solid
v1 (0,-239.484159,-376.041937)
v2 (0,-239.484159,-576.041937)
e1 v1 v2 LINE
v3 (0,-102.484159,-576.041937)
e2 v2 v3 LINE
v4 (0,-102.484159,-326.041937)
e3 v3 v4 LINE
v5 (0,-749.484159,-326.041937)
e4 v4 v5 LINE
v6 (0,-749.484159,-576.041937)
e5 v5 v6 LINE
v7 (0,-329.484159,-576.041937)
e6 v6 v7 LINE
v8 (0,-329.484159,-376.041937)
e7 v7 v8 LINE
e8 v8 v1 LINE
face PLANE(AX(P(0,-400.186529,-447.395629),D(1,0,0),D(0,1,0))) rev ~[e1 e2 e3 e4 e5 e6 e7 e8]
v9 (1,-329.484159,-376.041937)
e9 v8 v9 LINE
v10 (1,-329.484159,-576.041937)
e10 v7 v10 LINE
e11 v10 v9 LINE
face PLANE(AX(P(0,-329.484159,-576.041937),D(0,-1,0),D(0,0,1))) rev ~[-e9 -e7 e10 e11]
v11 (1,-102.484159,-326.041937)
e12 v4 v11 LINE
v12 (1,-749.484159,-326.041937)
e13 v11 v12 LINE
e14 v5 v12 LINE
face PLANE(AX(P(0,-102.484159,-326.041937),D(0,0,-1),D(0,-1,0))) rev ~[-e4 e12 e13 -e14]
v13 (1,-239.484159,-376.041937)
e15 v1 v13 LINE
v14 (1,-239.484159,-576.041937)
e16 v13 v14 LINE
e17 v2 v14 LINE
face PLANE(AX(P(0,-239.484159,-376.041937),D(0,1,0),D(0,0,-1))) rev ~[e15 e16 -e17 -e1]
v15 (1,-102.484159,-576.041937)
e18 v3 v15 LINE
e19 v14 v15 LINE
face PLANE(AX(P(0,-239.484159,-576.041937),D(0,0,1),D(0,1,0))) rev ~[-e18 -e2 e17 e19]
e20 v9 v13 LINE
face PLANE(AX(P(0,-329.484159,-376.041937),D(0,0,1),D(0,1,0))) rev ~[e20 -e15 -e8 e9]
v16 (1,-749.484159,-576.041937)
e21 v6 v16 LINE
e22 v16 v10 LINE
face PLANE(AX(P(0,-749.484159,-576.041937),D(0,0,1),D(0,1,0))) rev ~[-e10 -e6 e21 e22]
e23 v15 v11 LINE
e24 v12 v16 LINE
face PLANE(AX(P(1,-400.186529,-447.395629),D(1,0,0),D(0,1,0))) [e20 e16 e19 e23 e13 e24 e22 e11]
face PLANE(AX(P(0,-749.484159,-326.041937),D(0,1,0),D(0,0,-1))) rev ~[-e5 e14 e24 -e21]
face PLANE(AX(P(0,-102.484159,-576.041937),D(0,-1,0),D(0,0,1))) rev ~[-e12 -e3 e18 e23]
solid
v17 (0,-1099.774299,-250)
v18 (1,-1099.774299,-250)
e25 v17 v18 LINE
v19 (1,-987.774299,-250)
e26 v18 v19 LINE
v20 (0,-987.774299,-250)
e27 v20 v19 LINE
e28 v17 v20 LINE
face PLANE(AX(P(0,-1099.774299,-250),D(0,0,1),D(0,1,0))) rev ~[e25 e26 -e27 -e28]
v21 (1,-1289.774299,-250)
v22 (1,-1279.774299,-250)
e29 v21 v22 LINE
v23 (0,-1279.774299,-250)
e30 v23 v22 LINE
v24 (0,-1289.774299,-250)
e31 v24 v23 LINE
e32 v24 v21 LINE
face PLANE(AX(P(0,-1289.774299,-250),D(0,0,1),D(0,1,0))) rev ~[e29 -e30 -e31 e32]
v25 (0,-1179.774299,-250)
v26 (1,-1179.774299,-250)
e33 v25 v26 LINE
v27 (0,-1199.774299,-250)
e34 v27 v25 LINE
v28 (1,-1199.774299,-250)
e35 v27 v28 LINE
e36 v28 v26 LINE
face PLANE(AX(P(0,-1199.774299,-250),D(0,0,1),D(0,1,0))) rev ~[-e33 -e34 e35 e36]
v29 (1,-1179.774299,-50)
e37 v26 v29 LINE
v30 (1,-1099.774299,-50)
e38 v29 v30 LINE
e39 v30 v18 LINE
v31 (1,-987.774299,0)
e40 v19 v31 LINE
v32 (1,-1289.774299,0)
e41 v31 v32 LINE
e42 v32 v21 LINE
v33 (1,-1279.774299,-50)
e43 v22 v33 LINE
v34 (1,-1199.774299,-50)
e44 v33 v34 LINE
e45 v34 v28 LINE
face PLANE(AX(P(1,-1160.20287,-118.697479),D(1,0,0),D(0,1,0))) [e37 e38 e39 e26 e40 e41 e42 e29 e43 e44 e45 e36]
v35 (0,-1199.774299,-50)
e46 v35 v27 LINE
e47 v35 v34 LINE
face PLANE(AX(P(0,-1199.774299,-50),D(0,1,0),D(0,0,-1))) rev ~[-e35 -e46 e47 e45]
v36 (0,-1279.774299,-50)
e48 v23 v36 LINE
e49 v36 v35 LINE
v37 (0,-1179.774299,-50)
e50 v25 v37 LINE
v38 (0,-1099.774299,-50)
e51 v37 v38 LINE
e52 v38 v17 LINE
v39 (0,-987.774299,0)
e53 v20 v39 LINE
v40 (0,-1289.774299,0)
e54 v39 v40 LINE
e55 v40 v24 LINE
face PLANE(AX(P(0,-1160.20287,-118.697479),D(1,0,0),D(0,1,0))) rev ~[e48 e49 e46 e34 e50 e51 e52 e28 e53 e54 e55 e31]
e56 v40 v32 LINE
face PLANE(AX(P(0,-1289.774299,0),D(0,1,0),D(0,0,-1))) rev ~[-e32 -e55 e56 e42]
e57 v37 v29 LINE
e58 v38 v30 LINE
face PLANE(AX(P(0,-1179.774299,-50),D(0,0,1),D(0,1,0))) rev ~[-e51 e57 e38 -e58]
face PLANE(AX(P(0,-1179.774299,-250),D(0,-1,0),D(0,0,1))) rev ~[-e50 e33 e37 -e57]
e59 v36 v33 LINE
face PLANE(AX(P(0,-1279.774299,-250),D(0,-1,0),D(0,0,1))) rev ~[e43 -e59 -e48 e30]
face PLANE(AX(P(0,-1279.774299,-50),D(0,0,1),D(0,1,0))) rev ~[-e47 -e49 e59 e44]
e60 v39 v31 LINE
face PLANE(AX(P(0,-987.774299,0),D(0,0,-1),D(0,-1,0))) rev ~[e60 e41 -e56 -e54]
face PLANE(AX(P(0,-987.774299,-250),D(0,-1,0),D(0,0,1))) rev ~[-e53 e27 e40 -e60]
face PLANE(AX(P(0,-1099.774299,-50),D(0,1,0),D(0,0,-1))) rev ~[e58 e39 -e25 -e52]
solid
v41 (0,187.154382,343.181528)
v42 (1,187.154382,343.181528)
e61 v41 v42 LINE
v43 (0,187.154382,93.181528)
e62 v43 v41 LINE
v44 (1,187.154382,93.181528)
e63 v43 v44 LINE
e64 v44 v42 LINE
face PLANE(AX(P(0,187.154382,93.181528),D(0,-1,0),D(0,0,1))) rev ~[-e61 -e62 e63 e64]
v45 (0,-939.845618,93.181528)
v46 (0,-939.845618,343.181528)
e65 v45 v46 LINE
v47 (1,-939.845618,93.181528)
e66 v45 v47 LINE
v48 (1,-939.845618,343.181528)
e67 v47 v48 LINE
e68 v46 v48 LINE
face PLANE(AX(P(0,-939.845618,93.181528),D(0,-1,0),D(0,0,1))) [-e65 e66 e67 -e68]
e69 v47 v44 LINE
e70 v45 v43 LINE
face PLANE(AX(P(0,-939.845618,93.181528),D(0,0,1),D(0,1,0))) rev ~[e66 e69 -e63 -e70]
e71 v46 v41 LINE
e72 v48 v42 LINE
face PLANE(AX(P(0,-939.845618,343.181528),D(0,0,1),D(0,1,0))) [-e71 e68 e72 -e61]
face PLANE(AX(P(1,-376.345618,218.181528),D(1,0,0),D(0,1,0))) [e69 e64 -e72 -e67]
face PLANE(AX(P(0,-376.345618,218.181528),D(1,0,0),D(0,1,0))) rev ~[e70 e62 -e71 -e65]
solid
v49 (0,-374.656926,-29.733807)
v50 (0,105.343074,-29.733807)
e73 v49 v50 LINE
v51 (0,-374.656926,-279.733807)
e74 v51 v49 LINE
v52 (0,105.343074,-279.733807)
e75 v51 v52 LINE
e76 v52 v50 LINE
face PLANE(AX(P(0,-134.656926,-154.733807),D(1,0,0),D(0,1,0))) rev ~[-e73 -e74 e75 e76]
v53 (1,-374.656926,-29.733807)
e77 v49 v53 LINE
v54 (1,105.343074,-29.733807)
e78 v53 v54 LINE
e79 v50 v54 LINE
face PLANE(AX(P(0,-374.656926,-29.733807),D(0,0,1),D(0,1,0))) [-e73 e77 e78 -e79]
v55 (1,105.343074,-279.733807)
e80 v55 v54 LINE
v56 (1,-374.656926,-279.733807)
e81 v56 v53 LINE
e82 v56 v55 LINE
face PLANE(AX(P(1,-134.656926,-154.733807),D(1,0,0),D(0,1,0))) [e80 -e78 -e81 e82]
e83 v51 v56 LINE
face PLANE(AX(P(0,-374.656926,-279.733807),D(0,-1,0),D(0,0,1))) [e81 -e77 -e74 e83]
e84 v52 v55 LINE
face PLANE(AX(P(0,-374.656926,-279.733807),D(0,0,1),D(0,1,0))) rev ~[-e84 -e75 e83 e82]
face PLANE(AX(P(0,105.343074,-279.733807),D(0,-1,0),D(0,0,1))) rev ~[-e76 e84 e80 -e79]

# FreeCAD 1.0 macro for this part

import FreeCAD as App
import Part
import Sketcher

doc = App.newDocument("Part")
body = doc.addObject("PartDesign::Body", "Body")
body.AllowCompound = True

# Sketch on YZ plane
sketch1 = body.newObject("Sketcher::SketchObject", "Sketch")
sketch1.AttachmentSupport = (doc.getObject("YZ_Plane"), [""])
sketch1.MapMode = "FlatFace"
sketch1.addGeometry(Part.LineSegment(App.Vector(-940, 343, 0), App.Vector(-940, 93, 0)), False)
sketch1.addGeometry(Part.LineSegment(App.Vector(-940, 93, 0), App.Vector(187, 93, 0)), False)
sketch1.addGeometry(Part.LineSegment(App.Vector(187, 93, 0), App.Vector(187, 343, 0)), False)
sketch1.addGeometry(Part.LineSegment(App.Vector(187, 343, 0), App.Vector(-940, 343, 0)), False)
sketch1.addGeometry(Part.LineSegment(App.Vector(-988, 0, 0), App.Vector(-1290, 0, 0)), False)
sketch1.addGeometry(Part.LineSegment(App.Vector(-1290, 0, 0), App.Vector(-1290, -250, 0)), False)
sketch1.addGeometry(Part.LineSegment(App.Vector(-1290, -250, 0), App.Vector(-1280, -250, 0)), False)
sketch1.addGeometry(Part.LineSegment(App.Vector(-1280, -250, 0), App.Vector(-1280, -50, 0)), False)
sketch1.addGeometry(Part.LineSegment(App.Vector(-1280, -50, 0), App.Vector(-1200, -50, 0)), False)
sketch1.addGeometry(Part.LineSegment(App.Vector(-1200, -50, 0), App.Vector(-1200, -250, 0)), False)
sketch1.addGeometry(Part.LineSegment(App.Vector(-1200, -250, 0), App.Vector(-1180, -250, 0)), False)
sketch1.addGeometry(Part.LineSegment(App.Vector(-1180, -250, 0), App.Vector(-1180, -50, 0)), False)
sketch1.addGeometry(Part.LineSegment(App.Vector(-1180, -50, 0), App.Vector(-1100, -50, 0)), False)
sketch1.addGeometry(Part.LineSegment(App.Vector(-1100, -50, 0), App.Vector(-1100, -250, 0)), False)
sketch1.addGeometry(Part.LineSegment(App.Vector(-1100, -250, 0), App.Vector(-988, -250, 0)), False)
sketch1.addGeometry(Part.LineSegment(App.Vector(-988, -250, 0), App.Vector(-988, 0, 0)), False)
sketch1.addGeometry(Part.LineSegment(App.Vector(-375, -30, 0), App.Vector(-375, -280, 0)), False)
sketch1.addGeometry(Part.LineSegment(App.Vector(-375, -280, 0), App.Vector(105, -280, 0)), False)
sketch1.addGeometry(Part.LineSegment(App.Vector(105, -280, 0), App.Vector(105, -30, 0)), False)
sketch1.addGeometry(Part.LineSegment(App.Vector(105, -30, 0), App.Vector(-375, -30, 0)), False)
sketch1.addGeometry(Part.LineSegment(App.Vector(-102, -326, 0), App.Vector(-749, -326, 0)), False)
sketch1.addGeometry(Part.LineSegment(App.Vector(-749, -326, 0), App.Vector(-749, -576, 0)), False)
sketch1.addGeometry(Part.LineSegment(App.Vector(-749, -576, 0), App.Vector(-329, -576, 0)), False)
sketch1.addGeometry(Part.LineSegment(App.Vector(-329, -576, 0), App.Vector(-329, -376, 0)), False)
sketch1.addGeometry(Part.LineSegment(App.Vector(-329, -376, 0), App.Vector(-239, -376, 0)), False)
sketch1.addGeometry(Part.LineSegment(App.Vector(-239, -376, 0), App.Vector(-239, -576, 0)), False)
sketch1.addGeometry(Part.LineSegment(App.Vector(-239, -576, 0), App.Vector(-102, -576, 0)), False)
sketch1.addGeometry(Part.LineSegment(App.Vector(-102, -576, 0), App.Vector(-102, -326, 0)), False)
sketch1.addConstraint(Sketcher.Constraint("Coincident", 0, 2, 1, 1))
sketch1.addConstraint(Sketcher.Constraint("Coincident", 1, 2, 2, 1))
sketch1.addConstraint(Sketcher.Constraint("Coincident", 2, 2, 3, 1))
sketch1.addConstraint(Sketcher.Constraint("Coincident", 3, 2, 0, 1))
sketch1.addConstraint(Sketcher.Constraint("Coincident", 4, 2, 5, 1))
sketch1.addConstraint(Sketcher.Constraint("Coincident", 5, 2, 6, 1))
sketch1.addConstraint(Sketcher.Constraint("Coincident", 6, 2, 7, 1))
sketch1.addConstraint(Sketcher.Constraint("Coincident", 7, 2, 8, 1))
sketch1.addConstraint(Sketcher.Constraint("Coincident", 8, 2, 9, 1))
sketch1.addConstraint(Sketcher.Constraint("Coincident", 9, 2, 10, 1))
sketch1.addConstraint(Sketcher.Constraint("Coincident", 10, 2, 11, 1))
sketch1.addConstraint(Sketcher.Constraint("Coincident", 11, 2, 12, 1))
sketch1.addConstraint(Sketcher.Constraint("Coincident", 12, 2, 13, 1))
sketch1.addConstraint(Sketcher.Constraint("Coincident", 13, 2, 14, 1))
sketch1.addConstraint(Sketcher.Constraint("Coincident", 14, 2, 15, 1))
sketch1.addConstraint(Sketcher.Constraint("Coincident", 15, 2, 4, 1))
sketch1.addConstraint(Sketcher.Constraint("Coincident", 16, 2, 17, 1))
sketch1.addConstraint(Sketcher.Constraint("Coincident", 17, 2, 18, 1))
sketch1.addConstraint(Sketcher.Constraint("Coincident", 18, 2, 19, 1))
sketch1.addConstraint(Sketcher.Constraint("Coincident", 19, 2, 16, 1))
sketch1.addConstraint(Sketcher.Constraint("Coincident", 20, 2, 21, 1))
sketch1.addConstraint(Sketcher.Constraint("Coincident", 21, 2, 22, 1))
sketch1.addConstraint(Sketcher.Constraint("Coincident", 22, 2, 23, 1))
sketch1.addConstraint(Sketcher.Constraint("Coincident", 23, 2, 24, 1))
sketch1.addConstraint(Sketcher.Constraint("Coincident", 24, 2, 25, 1))
sketch1.addConstraint(Sketcher.Constraint("Coincident", 25, 2, 26, 1))
sketch1.addConstraint(Sketcher.Constraint("Coincident", 26, 2, 27, 1))
sketch1.addConstraint(Sketcher.Constraint("Coincident", 27, 2, 20, 1))
sketch1.addConstraint(Sketcher.Constraint("Vertical", 0))
sketch1.addConstraint(Sketcher.Constraint("Horizontal", 1))
sketch1.addConstraint(Sketcher.Constraint("Vertical", 2))
sketch1.addConstraint(Sketcher.Constraint("Horizontal", 3))
sketch1.addConstraint(Sketcher.Constraint("Horizontal", 4))
sketch1.addConstraint(Sketcher.Constraint("Vertical", 5))
sketch1.addConstraint(Sketcher.Constraint("Horizontal", 6))
sketch1.addConstraint(Sketcher.Constraint("Vertical", 7))
sketch1.addConstraint(Sketcher.Constraint("Horizontal", 8))
sketch1.addConstraint(Sketcher.Constraint("Vertical", 9))
sketch1.addConstraint(Sketcher.Constraint("Horizontal", 10))
sketch1.addConstraint(Sketcher.Constraint("Vertical", 11))
sketch1.addConstraint(Sketcher.Constraint("Horizontal", 12))
sketch1.addConstraint(Sketcher.Constraint("Vertical", 13))
sketch1.addConstraint(Sketcher.Constraint("Horizontal", 14))
sketch1.addConstraint(Sketcher.Constraint("Vertical", 15))
sketch1.addConstraint(Sketcher.Constraint("Vertical", 16))
sketch1.addConstraint(Sketcher.Constraint("Horizontal", 17))
sketch1.addConstraint(Sketcher.Constraint("Vertical", 18))
sketch1.addConstraint(Sketcher.Constraint("Horizontal", 19))
sketch1.addConstraint(Sketcher.Constraint("Horizontal", 20))
sketch1.addConstraint(Sketcher.Constraint("Vertical", 21))
sketch1.addConstraint(Sketcher.Constraint("Horizontal", 22))
sketch1.addConstraint(Sketcher.Constraint("Vertical", 23))
sketch1.addConstraint(Sketcher.Constraint("Horizontal", 24))
sketch1.addConstraint(Sketcher.Constraint("Vertical", 25))
sketch1.addConstraint(Sketcher.Constraint("Horizontal", 26))
sketch1.addConstraint(Sketcher.Constraint("Vertical", 27))
sketch1.addConstraint(Sketcher.Constraint("PointOnObject", 4, 2, -1))
sketch1.addConstraint(Sketcher.Constraint("Horizontal", 6, 2, 9, 2))
sketch1.addConstraint(Sketcher.Constraint("Horizontal", 8, 2, 11, 2))
sketch1.addConstraint(Sketcher.Constraint("Horizontal", 10, 2, 13, 2))
sketch1.addConstraint(Sketcher.Constraint("Horizontal", 22, 2, 25, 2))
sketch1.addConstraint(Sketcher.Constraint("Equal", 8, 12))
sketch1.addConstraint(Sketcher.Constraint("Equal", 2, 5))
sketch1.addConstraint(Sketcher.Constraint("Equal", 15, 16))
sketch1.addConstraint(Sketcher.Constraint("Equal", 18, 21))
sketch1.addConstraint(Sketcher.Constraint("Equal", 13, 23))
sketch1.addConstraint(Sketcher.Constraint("DistanceX", 1, 1, 1, 2, 1127.0))
sketch1.addConstraint(Sketcher.Constraint("DistanceX", 4, 2, 4, 1, 302.0))
sketch1.addConstraint(Sketcher.Constraint("DistanceX", 6, 1, 6, 2, 10.0))
sketch1.addConstraint(Sketcher.Constraint("DistanceX", 8, 1, 8, 2, 80.0))
sketch1.addConstraint(Sketcher.Constraint("DistanceX", 10, 1, 10, 2, 20.0))
sketch1.addConstraint(Sketcher.Constraint("DistanceX", 17, 1, 17, 2, 480.0))
sketch1.addConstraint(Sketcher.Constraint("DistanceX", 20, 2, 20, 1, 647.0))
sketch1.addConstraint(Sketcher.Constraint("DistanceX", 22, 1, 22, 2, 420.0))
sketch1.addConstraint(Sketcher.Constraint("DistanceX", 24, 1, 24, 2, 90.0))
sketch1.addConstraint(Sketcher.Constraint("DistanceY", 0, 2, 0, 1, 250.0))
sketch1.addConstraint(Sketcher.Constraint("DistanceY", 7, 1, 7, 2, 200.0))
sketch1.addConstraint(Sketcher.Constraint("DistanceX", 4, 2, -1, 1, 1289.774299))
sketch1.addConstraint(Sketcher.Constraint("DistanceY", -1, 1, 0, 2, 93.181528))
sketch1.addConstraint(Sketcher.Constraint("DistanceX", -1, 1, 1, 2, 187.154382))
sketch1.addConstraint(Sketcher.Constraint("DistanceX", 20, 2, -1, 1, 749.484159))
sketch1.addConstraint(Sketcher.Constraint("DistanceX", 16, 2, 1, 2, 561.811308))
sketch1.addConstraint(Sketcher.Constraint("DistanceY", 20, 2, 16, 2, 46.30813))
sketch1.addConstraint(Sketcher.Constraint("DistanceY", 16, 2, -1, 1, 279.733807))
pad1 = body.newObject("PartDesign::Pad", "Pad")
pad1.Profile = sketch1
pad1.Length = 1

doc.recompute()
